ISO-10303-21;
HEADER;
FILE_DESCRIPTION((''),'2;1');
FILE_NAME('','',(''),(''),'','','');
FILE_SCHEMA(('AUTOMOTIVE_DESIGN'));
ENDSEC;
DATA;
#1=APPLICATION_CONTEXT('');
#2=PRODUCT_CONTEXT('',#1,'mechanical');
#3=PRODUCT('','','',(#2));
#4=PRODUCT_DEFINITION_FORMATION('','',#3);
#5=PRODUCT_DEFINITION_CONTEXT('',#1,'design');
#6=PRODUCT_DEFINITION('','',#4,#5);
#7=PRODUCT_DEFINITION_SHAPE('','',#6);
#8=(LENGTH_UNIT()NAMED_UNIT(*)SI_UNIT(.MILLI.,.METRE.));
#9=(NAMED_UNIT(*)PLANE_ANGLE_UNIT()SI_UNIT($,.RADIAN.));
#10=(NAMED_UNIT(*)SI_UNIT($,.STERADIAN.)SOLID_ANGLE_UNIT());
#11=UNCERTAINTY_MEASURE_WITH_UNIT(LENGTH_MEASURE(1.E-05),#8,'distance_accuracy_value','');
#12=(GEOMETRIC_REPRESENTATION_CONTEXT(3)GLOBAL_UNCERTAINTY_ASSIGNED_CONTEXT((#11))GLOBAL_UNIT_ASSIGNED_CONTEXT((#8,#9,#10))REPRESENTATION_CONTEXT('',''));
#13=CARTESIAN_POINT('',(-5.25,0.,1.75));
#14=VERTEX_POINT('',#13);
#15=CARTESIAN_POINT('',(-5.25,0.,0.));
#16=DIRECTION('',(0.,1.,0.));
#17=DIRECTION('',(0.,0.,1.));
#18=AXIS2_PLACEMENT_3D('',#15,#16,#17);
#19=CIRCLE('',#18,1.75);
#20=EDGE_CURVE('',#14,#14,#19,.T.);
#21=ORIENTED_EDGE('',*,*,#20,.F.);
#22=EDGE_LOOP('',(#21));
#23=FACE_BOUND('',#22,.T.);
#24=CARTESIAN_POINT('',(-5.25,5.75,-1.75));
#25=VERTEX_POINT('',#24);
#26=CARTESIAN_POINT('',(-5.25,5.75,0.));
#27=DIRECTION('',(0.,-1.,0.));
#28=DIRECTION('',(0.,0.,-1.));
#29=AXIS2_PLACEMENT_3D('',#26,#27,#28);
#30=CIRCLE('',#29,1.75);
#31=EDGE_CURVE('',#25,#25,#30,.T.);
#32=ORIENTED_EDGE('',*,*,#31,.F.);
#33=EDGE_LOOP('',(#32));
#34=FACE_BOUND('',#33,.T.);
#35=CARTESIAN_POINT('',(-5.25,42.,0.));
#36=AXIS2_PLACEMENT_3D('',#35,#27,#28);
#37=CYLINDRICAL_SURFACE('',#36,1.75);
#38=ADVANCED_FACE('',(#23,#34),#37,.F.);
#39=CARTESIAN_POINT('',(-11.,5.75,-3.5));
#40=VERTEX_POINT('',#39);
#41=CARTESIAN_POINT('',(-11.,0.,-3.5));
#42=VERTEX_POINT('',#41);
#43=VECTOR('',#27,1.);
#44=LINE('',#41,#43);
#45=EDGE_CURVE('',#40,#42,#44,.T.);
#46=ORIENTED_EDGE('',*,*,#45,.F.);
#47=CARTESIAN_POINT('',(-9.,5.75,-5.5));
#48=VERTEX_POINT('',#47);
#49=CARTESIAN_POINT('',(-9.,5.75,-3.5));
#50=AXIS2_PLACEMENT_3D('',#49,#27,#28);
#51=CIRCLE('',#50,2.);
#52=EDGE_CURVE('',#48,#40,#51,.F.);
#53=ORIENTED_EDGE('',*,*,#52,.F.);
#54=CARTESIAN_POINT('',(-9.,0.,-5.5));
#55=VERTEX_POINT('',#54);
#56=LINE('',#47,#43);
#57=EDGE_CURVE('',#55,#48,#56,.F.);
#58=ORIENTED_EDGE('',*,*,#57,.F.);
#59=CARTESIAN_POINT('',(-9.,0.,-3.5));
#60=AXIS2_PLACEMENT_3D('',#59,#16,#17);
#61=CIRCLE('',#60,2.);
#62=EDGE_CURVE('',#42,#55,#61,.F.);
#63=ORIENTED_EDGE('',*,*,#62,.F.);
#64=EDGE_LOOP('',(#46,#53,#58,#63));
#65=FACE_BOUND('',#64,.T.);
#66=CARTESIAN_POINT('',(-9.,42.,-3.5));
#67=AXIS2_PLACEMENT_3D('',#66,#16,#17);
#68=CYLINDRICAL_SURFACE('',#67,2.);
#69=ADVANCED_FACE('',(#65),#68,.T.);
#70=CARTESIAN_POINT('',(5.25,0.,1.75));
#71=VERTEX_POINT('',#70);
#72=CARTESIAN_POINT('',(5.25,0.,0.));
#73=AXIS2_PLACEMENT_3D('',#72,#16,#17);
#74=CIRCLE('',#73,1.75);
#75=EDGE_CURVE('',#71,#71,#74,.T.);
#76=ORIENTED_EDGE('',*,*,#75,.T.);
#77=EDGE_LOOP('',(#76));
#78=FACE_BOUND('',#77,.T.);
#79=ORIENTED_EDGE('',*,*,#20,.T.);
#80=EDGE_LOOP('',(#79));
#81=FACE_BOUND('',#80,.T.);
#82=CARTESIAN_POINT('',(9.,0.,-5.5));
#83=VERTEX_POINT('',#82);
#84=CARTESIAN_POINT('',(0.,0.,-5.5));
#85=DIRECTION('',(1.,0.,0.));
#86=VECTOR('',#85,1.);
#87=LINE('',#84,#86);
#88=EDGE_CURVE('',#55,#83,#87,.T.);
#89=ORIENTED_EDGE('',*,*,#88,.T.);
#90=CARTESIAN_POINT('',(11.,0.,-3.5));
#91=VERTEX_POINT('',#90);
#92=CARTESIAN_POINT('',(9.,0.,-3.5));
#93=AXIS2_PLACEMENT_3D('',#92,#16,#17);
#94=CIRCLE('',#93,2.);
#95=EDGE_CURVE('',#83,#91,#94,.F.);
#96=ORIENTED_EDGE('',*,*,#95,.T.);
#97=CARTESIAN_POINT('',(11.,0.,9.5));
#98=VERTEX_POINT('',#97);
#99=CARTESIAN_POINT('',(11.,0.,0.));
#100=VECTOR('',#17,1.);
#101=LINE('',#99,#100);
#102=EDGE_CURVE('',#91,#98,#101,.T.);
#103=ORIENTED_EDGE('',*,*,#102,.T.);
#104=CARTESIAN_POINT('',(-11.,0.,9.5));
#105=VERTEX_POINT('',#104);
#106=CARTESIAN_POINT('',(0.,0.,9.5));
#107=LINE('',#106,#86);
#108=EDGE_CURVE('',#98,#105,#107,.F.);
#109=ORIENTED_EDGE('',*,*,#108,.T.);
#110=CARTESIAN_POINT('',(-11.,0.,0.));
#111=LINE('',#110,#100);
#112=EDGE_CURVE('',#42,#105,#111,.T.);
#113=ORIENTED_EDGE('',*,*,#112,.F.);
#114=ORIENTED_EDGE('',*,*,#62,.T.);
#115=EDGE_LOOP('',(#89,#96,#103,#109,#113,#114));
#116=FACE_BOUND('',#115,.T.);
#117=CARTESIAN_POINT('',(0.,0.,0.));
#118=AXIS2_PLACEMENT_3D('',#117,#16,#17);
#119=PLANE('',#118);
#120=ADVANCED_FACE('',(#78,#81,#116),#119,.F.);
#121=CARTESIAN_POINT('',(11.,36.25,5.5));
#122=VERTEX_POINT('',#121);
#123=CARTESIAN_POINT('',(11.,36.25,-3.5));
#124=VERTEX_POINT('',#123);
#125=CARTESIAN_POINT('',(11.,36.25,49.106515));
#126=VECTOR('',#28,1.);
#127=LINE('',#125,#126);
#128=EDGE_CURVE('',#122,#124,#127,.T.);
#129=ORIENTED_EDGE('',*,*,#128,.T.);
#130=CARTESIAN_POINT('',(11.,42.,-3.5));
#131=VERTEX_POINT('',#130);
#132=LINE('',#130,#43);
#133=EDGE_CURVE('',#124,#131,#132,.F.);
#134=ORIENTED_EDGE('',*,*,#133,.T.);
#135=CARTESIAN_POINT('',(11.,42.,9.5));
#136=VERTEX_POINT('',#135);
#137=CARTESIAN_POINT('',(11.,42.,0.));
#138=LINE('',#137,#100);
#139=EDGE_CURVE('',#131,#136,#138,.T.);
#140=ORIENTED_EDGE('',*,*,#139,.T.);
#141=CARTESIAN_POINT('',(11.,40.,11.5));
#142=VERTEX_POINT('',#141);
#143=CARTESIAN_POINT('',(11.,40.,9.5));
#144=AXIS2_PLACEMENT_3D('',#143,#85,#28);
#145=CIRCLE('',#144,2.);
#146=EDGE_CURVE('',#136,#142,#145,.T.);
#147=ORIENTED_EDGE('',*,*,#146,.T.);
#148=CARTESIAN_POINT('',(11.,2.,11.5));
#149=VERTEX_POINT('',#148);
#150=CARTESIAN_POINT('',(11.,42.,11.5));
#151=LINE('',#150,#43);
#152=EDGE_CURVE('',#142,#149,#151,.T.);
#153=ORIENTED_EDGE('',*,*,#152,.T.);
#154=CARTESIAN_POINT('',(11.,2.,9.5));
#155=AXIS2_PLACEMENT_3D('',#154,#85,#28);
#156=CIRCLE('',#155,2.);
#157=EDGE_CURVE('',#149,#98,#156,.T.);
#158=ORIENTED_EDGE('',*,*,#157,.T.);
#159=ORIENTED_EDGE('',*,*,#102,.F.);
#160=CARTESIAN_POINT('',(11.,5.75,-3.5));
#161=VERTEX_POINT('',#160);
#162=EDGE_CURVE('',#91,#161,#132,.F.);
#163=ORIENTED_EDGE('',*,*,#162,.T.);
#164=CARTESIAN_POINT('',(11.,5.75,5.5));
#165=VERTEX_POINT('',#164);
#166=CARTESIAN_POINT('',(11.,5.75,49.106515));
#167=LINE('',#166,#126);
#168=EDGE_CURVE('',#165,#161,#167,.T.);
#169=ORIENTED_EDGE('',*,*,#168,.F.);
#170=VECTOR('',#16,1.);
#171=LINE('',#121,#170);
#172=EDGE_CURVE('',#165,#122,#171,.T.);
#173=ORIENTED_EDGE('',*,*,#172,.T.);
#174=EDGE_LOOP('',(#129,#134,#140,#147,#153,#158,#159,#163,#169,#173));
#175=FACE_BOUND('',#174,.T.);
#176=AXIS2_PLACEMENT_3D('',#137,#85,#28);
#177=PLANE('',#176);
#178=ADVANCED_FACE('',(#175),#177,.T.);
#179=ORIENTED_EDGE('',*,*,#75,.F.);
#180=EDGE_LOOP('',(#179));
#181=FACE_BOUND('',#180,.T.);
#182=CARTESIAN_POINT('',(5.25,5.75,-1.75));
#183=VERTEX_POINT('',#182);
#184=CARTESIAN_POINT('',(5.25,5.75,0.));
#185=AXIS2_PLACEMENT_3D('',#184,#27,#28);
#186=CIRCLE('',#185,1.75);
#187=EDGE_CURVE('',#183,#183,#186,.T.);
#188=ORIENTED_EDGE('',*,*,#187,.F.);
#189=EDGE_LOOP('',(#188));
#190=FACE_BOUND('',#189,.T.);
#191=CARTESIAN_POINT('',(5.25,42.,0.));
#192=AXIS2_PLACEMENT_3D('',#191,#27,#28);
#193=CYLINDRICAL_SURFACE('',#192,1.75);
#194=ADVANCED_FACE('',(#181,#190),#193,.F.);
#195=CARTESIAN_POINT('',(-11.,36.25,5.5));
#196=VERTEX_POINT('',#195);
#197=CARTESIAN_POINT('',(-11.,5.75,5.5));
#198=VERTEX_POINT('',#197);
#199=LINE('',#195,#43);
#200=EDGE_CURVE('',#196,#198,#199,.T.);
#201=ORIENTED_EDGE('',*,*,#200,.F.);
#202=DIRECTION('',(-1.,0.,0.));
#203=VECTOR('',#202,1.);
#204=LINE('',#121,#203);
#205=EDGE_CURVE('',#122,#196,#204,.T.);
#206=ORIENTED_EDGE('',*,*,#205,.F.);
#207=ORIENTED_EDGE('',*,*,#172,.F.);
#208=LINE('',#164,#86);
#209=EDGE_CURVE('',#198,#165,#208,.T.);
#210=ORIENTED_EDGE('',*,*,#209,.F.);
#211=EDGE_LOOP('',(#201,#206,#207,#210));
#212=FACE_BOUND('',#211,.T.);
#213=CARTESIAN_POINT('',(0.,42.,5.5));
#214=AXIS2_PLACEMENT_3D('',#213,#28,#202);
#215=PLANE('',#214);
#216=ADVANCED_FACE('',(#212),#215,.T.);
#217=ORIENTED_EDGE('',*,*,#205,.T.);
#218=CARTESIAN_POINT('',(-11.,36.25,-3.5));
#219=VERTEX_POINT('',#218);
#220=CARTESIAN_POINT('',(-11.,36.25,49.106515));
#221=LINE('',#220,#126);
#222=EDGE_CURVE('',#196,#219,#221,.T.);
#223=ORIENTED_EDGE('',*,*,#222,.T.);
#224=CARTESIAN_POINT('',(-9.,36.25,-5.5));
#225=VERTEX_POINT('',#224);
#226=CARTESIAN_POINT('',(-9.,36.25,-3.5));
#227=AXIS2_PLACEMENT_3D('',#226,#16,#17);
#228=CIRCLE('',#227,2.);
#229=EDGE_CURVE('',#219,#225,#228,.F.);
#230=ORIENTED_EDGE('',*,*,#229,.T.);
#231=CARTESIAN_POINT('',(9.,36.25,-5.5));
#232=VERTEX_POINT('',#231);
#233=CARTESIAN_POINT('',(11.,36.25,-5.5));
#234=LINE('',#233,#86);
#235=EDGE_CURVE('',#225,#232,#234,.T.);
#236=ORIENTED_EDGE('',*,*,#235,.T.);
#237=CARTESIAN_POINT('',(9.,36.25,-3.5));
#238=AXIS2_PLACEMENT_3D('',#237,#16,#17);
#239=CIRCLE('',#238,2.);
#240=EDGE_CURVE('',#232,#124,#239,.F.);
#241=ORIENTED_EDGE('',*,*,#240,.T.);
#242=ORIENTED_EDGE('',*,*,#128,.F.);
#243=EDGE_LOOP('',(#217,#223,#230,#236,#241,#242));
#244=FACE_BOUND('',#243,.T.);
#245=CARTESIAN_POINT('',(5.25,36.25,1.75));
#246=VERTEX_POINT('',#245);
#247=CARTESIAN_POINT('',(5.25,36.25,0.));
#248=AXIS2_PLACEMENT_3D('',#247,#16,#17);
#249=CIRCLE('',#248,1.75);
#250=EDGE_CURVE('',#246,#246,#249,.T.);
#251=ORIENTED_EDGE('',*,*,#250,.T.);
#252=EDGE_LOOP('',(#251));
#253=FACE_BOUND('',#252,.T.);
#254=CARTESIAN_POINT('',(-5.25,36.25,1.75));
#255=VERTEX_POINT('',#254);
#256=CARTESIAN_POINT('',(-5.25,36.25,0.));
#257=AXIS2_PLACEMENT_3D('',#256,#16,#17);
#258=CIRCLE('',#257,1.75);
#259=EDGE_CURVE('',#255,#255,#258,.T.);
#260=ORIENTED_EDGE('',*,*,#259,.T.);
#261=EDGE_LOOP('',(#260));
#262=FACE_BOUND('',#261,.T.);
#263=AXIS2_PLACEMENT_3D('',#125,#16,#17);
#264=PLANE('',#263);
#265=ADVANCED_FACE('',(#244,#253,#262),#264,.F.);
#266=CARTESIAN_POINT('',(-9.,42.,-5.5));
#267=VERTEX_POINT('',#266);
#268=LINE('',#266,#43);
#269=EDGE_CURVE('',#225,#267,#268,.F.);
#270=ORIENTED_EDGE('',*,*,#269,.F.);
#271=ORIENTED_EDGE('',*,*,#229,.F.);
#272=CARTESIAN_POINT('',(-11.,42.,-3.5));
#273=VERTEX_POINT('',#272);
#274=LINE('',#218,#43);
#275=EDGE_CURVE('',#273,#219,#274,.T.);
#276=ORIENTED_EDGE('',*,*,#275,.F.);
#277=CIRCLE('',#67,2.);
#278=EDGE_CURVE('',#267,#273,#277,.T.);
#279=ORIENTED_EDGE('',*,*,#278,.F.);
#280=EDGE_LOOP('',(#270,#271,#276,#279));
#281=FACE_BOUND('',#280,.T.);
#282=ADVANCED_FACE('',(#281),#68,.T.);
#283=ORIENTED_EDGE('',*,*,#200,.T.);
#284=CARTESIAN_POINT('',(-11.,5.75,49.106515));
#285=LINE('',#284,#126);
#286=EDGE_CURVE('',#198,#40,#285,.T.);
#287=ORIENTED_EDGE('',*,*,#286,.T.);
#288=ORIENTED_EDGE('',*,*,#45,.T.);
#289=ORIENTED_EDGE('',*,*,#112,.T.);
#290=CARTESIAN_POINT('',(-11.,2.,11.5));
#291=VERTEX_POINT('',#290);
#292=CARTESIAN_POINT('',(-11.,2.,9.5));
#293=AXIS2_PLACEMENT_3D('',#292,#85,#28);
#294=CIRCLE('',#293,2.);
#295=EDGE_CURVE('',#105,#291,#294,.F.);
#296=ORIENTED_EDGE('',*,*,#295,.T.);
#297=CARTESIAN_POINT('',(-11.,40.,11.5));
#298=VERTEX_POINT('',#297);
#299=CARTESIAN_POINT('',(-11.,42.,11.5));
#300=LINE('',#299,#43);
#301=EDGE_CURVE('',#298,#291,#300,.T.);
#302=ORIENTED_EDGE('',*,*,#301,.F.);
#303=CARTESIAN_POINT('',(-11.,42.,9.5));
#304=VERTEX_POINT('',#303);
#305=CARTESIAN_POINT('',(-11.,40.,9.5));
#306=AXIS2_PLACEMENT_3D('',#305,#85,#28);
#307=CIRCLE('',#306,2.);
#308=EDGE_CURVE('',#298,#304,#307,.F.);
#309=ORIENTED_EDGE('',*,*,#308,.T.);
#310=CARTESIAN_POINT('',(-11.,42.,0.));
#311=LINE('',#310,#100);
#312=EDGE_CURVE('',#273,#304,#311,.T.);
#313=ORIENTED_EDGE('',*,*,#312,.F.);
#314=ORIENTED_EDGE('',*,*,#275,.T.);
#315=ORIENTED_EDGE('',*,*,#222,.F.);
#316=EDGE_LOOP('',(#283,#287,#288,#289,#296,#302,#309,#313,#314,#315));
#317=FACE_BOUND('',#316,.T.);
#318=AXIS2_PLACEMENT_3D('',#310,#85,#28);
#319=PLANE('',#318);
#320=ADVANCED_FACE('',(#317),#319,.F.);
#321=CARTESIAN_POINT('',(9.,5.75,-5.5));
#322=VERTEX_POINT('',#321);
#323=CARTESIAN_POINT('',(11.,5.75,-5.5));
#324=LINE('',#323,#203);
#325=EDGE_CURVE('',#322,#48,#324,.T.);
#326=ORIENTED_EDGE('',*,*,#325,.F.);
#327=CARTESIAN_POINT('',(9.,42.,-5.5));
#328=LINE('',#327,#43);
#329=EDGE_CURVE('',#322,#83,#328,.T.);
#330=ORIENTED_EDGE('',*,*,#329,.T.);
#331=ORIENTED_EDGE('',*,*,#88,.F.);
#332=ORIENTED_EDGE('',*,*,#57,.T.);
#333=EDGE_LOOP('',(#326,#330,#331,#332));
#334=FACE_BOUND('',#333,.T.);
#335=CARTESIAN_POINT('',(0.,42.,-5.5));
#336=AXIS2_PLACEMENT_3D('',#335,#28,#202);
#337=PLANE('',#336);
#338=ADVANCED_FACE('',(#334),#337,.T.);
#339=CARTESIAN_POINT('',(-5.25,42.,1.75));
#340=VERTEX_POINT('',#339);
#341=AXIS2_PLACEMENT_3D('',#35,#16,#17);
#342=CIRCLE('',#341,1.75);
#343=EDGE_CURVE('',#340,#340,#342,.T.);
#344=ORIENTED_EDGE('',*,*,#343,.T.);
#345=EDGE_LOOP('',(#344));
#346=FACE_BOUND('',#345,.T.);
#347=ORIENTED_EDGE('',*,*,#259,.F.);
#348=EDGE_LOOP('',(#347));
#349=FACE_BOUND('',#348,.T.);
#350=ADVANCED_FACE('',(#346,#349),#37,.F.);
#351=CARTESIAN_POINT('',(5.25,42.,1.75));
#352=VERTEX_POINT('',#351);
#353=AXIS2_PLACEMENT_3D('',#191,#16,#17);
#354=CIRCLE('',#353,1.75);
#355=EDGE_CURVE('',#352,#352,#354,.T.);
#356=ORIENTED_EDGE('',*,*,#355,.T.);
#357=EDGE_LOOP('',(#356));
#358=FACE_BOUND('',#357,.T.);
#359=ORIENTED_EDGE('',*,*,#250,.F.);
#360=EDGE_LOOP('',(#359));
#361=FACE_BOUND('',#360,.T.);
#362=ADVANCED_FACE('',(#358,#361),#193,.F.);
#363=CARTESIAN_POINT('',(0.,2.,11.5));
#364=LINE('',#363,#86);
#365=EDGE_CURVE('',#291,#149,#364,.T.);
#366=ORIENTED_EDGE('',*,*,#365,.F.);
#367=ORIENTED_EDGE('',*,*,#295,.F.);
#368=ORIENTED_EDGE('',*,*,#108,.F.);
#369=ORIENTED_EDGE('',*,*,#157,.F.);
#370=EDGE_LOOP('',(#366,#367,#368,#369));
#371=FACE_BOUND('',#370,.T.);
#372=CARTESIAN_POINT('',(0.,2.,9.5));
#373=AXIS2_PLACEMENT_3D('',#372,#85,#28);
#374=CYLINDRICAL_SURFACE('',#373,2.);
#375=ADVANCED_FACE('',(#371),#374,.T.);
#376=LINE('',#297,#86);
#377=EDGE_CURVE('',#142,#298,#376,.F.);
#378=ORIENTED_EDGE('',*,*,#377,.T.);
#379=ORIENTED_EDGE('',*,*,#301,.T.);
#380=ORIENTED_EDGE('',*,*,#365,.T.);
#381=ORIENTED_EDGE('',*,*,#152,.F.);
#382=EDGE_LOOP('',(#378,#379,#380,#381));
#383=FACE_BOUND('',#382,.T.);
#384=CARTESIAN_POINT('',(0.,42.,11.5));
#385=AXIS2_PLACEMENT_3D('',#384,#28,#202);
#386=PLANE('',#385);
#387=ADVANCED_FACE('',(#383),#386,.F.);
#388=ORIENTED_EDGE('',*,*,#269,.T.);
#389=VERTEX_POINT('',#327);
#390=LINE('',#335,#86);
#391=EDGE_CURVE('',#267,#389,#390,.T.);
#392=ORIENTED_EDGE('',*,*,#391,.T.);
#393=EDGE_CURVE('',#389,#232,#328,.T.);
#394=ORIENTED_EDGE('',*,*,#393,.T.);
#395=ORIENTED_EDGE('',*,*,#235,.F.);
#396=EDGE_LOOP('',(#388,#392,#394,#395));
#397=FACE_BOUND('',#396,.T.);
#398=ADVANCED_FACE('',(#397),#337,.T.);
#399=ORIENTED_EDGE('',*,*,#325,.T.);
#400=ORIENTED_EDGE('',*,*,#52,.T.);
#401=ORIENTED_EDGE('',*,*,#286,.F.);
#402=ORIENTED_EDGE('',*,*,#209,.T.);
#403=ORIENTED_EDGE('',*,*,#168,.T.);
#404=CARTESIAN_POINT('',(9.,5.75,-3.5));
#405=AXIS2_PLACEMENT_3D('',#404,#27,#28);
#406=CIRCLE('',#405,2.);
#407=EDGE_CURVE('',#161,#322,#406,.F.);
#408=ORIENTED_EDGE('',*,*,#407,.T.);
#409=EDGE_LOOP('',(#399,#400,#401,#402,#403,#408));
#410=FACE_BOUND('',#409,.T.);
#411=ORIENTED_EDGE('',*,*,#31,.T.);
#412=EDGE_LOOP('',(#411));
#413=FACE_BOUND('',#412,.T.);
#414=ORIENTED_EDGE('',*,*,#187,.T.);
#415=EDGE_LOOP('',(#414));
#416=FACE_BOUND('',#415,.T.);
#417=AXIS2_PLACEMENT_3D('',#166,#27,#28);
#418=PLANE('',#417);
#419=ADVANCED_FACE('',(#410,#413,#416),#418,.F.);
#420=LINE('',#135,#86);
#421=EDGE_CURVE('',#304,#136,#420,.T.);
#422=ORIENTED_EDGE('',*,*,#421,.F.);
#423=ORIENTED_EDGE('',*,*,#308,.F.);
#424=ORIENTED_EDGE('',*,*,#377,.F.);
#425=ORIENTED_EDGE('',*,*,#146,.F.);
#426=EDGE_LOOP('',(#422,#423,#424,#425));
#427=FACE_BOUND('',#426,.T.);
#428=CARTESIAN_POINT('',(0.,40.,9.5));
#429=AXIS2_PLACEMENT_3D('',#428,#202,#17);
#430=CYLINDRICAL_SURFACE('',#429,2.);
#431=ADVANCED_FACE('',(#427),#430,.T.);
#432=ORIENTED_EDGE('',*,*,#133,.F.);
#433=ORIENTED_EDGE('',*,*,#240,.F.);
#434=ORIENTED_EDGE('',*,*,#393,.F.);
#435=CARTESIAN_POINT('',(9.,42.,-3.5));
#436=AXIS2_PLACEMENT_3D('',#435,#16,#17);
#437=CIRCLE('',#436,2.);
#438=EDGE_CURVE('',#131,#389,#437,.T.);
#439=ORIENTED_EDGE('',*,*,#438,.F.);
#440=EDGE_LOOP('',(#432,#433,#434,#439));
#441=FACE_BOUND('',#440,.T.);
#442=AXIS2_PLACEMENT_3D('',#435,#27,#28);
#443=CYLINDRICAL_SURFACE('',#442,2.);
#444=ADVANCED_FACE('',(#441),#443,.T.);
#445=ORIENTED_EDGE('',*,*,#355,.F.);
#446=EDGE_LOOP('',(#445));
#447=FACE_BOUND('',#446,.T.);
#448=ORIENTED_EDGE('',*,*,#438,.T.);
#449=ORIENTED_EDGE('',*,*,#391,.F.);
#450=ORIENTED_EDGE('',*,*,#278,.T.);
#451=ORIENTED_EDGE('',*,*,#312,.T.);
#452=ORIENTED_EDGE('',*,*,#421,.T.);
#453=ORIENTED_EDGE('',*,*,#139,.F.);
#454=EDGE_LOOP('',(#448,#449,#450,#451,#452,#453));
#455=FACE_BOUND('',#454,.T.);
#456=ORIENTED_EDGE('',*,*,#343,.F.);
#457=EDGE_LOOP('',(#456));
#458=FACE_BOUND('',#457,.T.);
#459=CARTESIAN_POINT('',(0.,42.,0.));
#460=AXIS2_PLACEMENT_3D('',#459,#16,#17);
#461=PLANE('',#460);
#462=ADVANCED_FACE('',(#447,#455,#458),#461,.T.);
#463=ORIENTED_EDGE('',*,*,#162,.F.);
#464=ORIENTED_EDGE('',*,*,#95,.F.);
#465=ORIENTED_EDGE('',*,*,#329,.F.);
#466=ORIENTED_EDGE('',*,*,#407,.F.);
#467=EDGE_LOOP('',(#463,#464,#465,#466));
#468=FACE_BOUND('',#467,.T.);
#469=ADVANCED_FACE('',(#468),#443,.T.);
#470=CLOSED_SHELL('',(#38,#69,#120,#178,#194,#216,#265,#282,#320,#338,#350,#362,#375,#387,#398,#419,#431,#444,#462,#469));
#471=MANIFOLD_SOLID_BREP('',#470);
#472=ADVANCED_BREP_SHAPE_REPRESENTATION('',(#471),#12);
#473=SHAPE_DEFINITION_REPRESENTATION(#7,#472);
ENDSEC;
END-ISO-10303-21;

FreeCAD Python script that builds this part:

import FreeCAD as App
import Part
import Sketcher
Q = App.Units.Quantity


def edges_at(feature, points):
    """Names of the edges that pass closest to the given points."""
    edges = feature.Shape.Edges
    near = lambda p: min(range(len(edges)), key=lambda i: edges[i].distToShape(Part.Vertex(*p))[0])
    return sorted({f"Edge{near(p) + 1}" for p in points})


def add_polygon(sketch, points):
    """Adds a closed chain of lines whose ends are joined by coincident constraints."""
    first, n = sketch.GeometryCount, len(points)
    for a, b in zip(points, points[1:] + points[:1]):
        sketch.addGeometry(Part.LineSegment(App.Vector(*a, 0), App.Vector(*b, 0)), False)
    for i in range(n):
        sketch.addConstraint(Sketcher.Constraint("Coincident", first + i, 2, first + (i + 1) % n, 1))

doc = App.newDocument("Part")
body = doc.addObject("PartDesign::Body", "Body")

sketch1 = body.newObject("Sketcher::SketchObject", "Sketch")
sketch1.AttachmentSupport = (doc.getObject("XZ_Plane"), [""])
sketch1.MapMode = "FlatFace"
add_polygon(sketch1, [(-11, 11.5), (11, 11.5), (11, -5.5), (-11, -5.5)])
sketch1.addGeometry(Part.Circle(App.Vector(-5.25, 0, 0), App.Vector(0, 0, 1), 1.75), False)
sketch1.addGeometry(Part.Circle(App.Vector(5.25, 0, 0), App.Vector(0, 0, 1), 1.75), False)
sketch1.addConstraint([
    Sketcher.Constraint("Horizontal", 0),
    Sketcher.Constraint("Vertical", 1),
    Sketcher.Constraint("Horizontal", 2),
    Sketcher.Constraint("Vertical", 3),
    Sketcher.Constraint("Equal", 4, 5),
    Sketcher.Constraint("Symmetric", 4, 3, 5, 3, -1, 1),
    Sketcher.Constraint("PointOnObject", 4, 3, -1),
    Sketcher.Constraint("Diameter", 4, Q("3.5 mm")),
    Sketcher.Constraint("DistanceX", 0, 1, 0, 2, Q("22 mm")),
    Sketcher.Constraint("DistanceY", 1, 2, 1, 1, Q("17 mm")),
    Sketcher.Constraint("DistanceX", -1, 1, 0, 2, Q("11 mm")),
    Sketcher.Constraint("DistanceY", -1, 1, 0, 2, Q("11.5 mm")),
    Sketcher.Constraint("DistanceX", 4, 3, 5, 3, Q("10.5 mm")),
])
pad1 = body.newObject("PartDesign::Pad", "Pad")
pad1.Profile = sketch1
pad1.Length = 42
pad1.Reversed = True

sketch2 = body.newObject("Sketcher::SketchObject", "Sketch001")
sketch2.AttachmentSupport = (doc.getObject("XY_Plane"), [""])
sketch2.MapMode = "FlatFace"
sketch2.AttachmentOffset = App.Placement(App.Vector(0, 0, -5.5), App.Rotation())
add_polygon(sketch2, [(11, 36.25), (11, 5.75), (-11, 5.75), (-11, 36.25)])
sketch2.addConstraint([
    Sketcher.Constraint("Vertical", 0),
    Sketcher.Constraint("Horizontal", 1),
    Sketcher.Constraint("Vertical", 2),
    Sketcher.Constraint("Horizontal", 3),
    Sketcher.Constraint("DistanceX", 1, 2, 1, 1, Q("22 mm")),
    Sketcher.Constraint("DistanceY", 0, 2, 0, 1, Q("30.5 mm")),
    Sketcher.Constraint("DistanceX", -1, 1, 0, 2, Q("11 mm")),
    Sketcher.Constraint("DistanceY", -1, 1, 0, 2, Q("5.75 mm")),
])
pocket1 = body.newObject("PartDesign::Pocket", "Pocket")
pocket1.Profile = sketch2
pocket1.Length = 11
pocket1.Reversed = True
doc.recompute()

fillet = body.newObject("PartDesign::Fillet", "Fillet")
fillet.Base = (pocket1, edges_at(pocket1, [
    (0, 0, 11.5),
    (-11, 39.125, -5.5),
    (11, 39.125, -5.5),
    (-11, 2.875, -5.5),
    (11, 2.875, -5.5),
    (0, 42, 11.5),
]))
fillet.Radius = 2

doc.recompute()
